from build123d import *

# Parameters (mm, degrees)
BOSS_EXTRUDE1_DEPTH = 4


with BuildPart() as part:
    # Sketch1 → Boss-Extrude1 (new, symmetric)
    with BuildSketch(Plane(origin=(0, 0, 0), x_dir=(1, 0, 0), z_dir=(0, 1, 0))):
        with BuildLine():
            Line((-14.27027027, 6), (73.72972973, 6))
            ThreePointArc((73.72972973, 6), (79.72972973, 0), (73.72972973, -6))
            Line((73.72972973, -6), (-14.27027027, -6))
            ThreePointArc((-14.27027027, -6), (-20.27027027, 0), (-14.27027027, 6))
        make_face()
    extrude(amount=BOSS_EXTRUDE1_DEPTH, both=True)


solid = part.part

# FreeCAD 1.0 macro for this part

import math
import FreeCAD as App
import Part
import Sketcher

V = App.Vector
Q = App.Units.Quantity

doc = App.newDocument("Part")
body = doc.addObject("PartDesign::Body", "Body")

sketch1 = body.newObject("Sketcher::SketchObject", "Sketch")
sketch1.AttachmentSupport = (doc.getObject("XZ_Plane"), [""])
sketch1.MapMode = "FlatFace"
sketch1.addGeometry([
    Part.LineSegment(V(73.72973, -6, 0), V(-14.27027, -6, 0)),
    Part.ArcOfCircle(Part.Circle(V(-14.27027, 0, 0), V(0, 0, 1), 6), math.radians(90), math.radians(270)),
    Part.LineSegment(V(-14.27027, 6, 0), V(73.72973, 6, 0)),
    Part.ArcOfCircle(Part.Circle(V(73.72973, 0, 0), V(0, 0, 1), 6), math.radians(-90), math.radians(90)),
], False)
sketch1.addConstraint([
    Sketcher.Constraint("Tangent", 0, 2, 1, 2),
    Sketcher.Constraint("Tangent", 1, 1, 2, 1),
    Sketcher.Constraint("Tangent", 2, 2, 3, 2),
    Sketcher.Constraint("Tangent", 3, 1, 0, 1),
    Sketcher.Constraint("Horizontal", 0),
    Sketcher.Constraint("Horizontal", 2),
    Sketcher.Constraint("PointOnObject", 1, 3, -1),
    Sketcher.Constraint("Radius", 1, Q("6 mm")),
    Sketcher.Constraint("DistanceX", 0, 2, 0, 1, Q("88 mm")),
    Sketcher.Constraint("DistanceX", 1, 3, -1, 1, Q("14.27027 mm")),
])
pad1 = body.newObject("PartDesign::Pad", "Pad")
pad1.Profile = sketch1
pad1.Length = 8
pad1.Midplane = True

doc.recompute()
